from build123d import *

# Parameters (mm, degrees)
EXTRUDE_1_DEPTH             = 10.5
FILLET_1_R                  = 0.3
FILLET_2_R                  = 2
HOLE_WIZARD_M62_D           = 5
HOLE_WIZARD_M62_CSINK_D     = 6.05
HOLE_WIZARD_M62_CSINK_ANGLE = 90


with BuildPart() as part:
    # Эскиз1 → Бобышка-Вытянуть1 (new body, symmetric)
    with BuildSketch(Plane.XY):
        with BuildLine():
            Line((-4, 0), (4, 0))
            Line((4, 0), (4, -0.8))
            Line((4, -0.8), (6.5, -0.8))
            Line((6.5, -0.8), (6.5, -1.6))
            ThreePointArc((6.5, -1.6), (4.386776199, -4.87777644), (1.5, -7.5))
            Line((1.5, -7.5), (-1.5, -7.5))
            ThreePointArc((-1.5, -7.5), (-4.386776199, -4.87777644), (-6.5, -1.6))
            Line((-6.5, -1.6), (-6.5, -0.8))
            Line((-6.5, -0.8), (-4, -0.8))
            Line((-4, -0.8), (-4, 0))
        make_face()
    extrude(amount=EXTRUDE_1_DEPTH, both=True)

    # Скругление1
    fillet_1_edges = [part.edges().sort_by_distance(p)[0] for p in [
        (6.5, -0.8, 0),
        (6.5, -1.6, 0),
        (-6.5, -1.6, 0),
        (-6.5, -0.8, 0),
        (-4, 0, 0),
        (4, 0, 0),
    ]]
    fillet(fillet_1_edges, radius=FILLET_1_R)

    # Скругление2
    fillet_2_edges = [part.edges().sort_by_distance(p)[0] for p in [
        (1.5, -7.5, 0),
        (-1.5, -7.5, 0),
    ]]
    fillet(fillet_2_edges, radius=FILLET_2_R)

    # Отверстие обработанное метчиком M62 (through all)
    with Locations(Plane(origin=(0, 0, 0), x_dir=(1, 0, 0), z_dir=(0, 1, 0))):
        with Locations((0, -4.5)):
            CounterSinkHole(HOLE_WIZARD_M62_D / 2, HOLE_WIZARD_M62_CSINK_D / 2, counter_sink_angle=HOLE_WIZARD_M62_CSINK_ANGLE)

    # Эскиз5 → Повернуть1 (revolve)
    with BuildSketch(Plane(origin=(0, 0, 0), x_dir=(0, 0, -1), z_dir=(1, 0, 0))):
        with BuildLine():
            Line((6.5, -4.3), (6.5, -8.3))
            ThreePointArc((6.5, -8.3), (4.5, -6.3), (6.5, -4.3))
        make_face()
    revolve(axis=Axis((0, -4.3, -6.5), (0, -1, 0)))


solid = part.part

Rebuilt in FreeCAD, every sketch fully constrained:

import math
import FreeCAD as App
import Part
import Sketcher
from FreeCAD import Vector


def edges_at(feature, points):
    """Names of the edges that pass closest to the given points."""
    edges = feature.Shape.Edges
    near = lambda p: min(range(len(edges)), key=lambda i: edges[i].distToShape(Part.Vertex(*p))[0])
    return sorted({f"Edge{near(p) + 1}" for p in points})

doc = App.newDocument("Part")
params = doc.addObject("Spreadsheet::Sheet", "Params")
for row, (alias, value) in enumerate([
    ("sketch1_radius", "15 mm"),
    ("sketch1_width", "8 mm"),
    ("sketch1_width2", "3 mm"),
    ("sketch1_width3", "2.5 mm"),
    ("sketch1_height", "0.8 mm"),
    ("pad1_length", "21 mm"),
    ("fillet_radius", "0.3 mm"),
    ("fillet2_radius", "2 mm"),
    ("sketch2_diameter", "5 mm"),
    ("hole_diameter", "5 mm"),
    ("hole_csink_diameter", "6.05 mm"),
    ("sketch3_radius", "2 mm"),
    ("revolution_angle", "360 deg"),
], start=1):
    params.set(f"A{row}", alias)
    params.set(f"B{row}", "=" + value)
    params.setAlias(f"B{row}", alias)

body = doc.addObject("PartDesign::Body", "Body")

# Sketch on XY plane
sketch1 = body.newObject("Sketcher::SketchObject", "Sketch")
sketch1.AttachmentSupport = (doc.getObject("XY_Plane"), [""])
sketch1.MapMode = "FlatFace"
sketch1.addGeometry(Part.LineSegment(Vector(4, 0, 0), Vector(-4, 0, 0)), False)
sketch1.addGeometry(Part.LineSegment(Vector(-4, 0, 0), Vector(-4, -0.8, 0)), False)
sketch1.addGeometry(Part.LineSegment(Vector(-4, -0.8, 0), Vector(-6.5, -0.8, 0)), False)
sketch1.addGeometry(Part.LineSegment(Vector(-6.5, -0.8, 0), Vector(-6.5, -1.6, 0)), False)
sketch1.addGeometry(Part.ArcOfCircle(Part.Circle(Vector(7.056658, 4.820049, 0), Vector(0, 0, 1), 15), math.radians(-154.659091), math.radians(-124.781183)), False)
sketch1.addGeometry(Part.LineSegment(Vector(-1.5, -7.5, 0), Vector(1.5, -7.5, 0)), False)
sketch1.addGeometry(Part.ArcOfCircle(Part.Circle(Vector(-7.056658, 4.820049, 0), Vector(0, 0, 1), 15), math.radians(-55.218817), math.radians(-25.340909)), False)
sketch1.addGeometry(Part.LineSegment(Vector(6.5, -1.6, 0), Vector(6.5, -0.8, 0)), False)
sketch1.addGeometry(Part.LineSegment(Vector(6.5, -0.8, 0), Vector(4, -0.8, 0)), False)
sketch1.addGeometry(Part.LineSegment(Vector(4, -0.8, 0), Vector(4, 0, 0)), False)
sketch1.addConstraint(Sketcher.Constraint("Coincident", 0, 2, 1, 1))
sketch1.addConstraint(Sketcher.Constraint("Coincident", 1, 2, 2, 1))
sketch1.addConstraint(Sketcher.Constraint("Coincident", 2, 2, 3, 1))
sketch1.addConstraint(Sketcher.Constraint("Coincident", 3, 2, 4, 1))
sketch1.addConstraint(Sketcher.Constraint("Coincident", 4, 2, 5, 1))
sketch1.addConstraint(Sketcher.Constraint("Coincident", 5, 2, 6, 1))
sketch1.addConstraint(Sketcher.Constraint("Coincident", 6, 2, 7, 1))
sketch1.addConstraint(Sketcher.Constraint("Coincident", 7, 2, 8, 1))
sketch1.addConstraint(Sketcher.Constraint("Coincident", 8, 2, 9, 1))
sketch1.addConstraint(Sketcher.Constraint("Coincident", 9, 2, 0, 1))
sketch1.addConstraint(Sketcher.Constraint("Horizontal", 0))
sketch1.addConstraint(Sketcher.Constraint("Vertical", 1))
sketch1.addConstraint(Sketcher.Constraint("Horizontal", 2))
sketch1.addConstraint(Sketcher.Constraint("Vertical", 3))
sketch1.addConstraint(Sketcher.Constraint("Horizontal", 5))
sketch1.addConstraint(Sketcher.Constraint("Vertical", 7))
sketch1.addConstraint(Sketcher.Constraint("Horizontal", 8))
sketch1.addConstraint(Sketcher.Constraint("Vertical", 9))
sketch1.addConstraint(Sketcher.Constraint("Equal", 4, 6))
sketch1.addConstraint(Sketcher.Constraint("Symmetric", 0, 2, 9, 2, -1, 1))
sketch1.addConstraint(Sketcher.Constraint("Symmetric", 4, 3, 6, 3, -2))
sketch1.addConstraint(Sketcher.Constraint("Symmetric", 2, 2, 7, 2, -2))
sketch1.addConstraint(Sketcher.Constraint("Equal", 1, 3))
sketch1.addConstraint(Sketcher.Constraint("Radius", 4, 15.0))
sketch1.addConstraint(Sketcher.Constraint("DistanceX", 0, 2, 0, 1, 8.0))
sketch1.addConstraint(Sketcher.Constraint("DistanceX", 5, 1, 5, 2, 3.0))
sketch1.addConstraint(Sketcher.Constraint("DistanceX", 2, 2, 2, 1, 2.5))
sketch1.addConstraint(Sketcher.Constraint("DistanceY", 1, 2, 1, 1, 0.8))
sketch1.addConstraint(Sketcher.Constraint("DistanceY", 4, 2, -1, 1, 7.5))
sketch1.setExpression("Constraints[23]", "Params.sketch1_radius")
sketch1.setExpression("Constraints[24]", "Params.sketch1_width")
sketch1.setExpression("Constraints[25]", "Params.sketch1_width2")
sketch1.setExpression("Constraints[26]", "Params.sketch1_width3")
sketch1.setExpression("Constraints[27]", "Params.sketch1_height")
pad1 = body.newObject("PartDesign::Pad", "Pad")
pad1.Profile = sketch1
pad1.setExpression("Length", "Params.pad1_length")
pad1.Midplane = True
doc.recompute()

fillet = body.newObject("PartDesign::Fillet", "Fillet")
fillet.Base = (pad1, edges_at(pad1, [
    (6.5, -0.8, 0),
    (6.5, -1.6, 0),
    (-6.5, -1.6, 0),
    (-6.5, -0.8, 0),
    (-4, 0, 0),
    (4, 0, 0),
]))
fillet.setExpression("Radius", "Params.fillet_radius")
doc.recompute()

fillet2 = body.newObject("PartDesign::Fillet", "Fillet001")
fillet2.Base = (fillet, edges_at(fillet, [(1.5, -7.5, 0), (-1.5, -7.5, 0)]))
fillet2.setExpression("Radius", "Params.fillet2_radius")

# Sketch on XZ plane
sketch2 = body.newObject("Sketcher::SketchObject", "Sketch001")
sketch2.AttachmentSupport = (doc.getObject("XZ_Plane"), [""])
sketch2.MapMode = "FlatFace"
sketch2.addGeometry(Part.Circle(Vector(0, 4.5, 0), Vector(0, 0, 1), 2.5), False)
sketch2.addConstraint(Sketcher.Constraint("PointOnObject", 0, 3, -2))
sketch2.addConstraint(Sketcher.Constraint("Diameter", 0, 5.0))
sketch2.addConstraint(Sketcher.Constraint("DistanceY", -1, 1, 0, 3, 4.5))
sketch2.setExpression("Constraints[1]", "Params.sketch2_diameter")
doc.recompute()
hole = body.newObject("PartDesign::Hole", "Hole")
hole.Profile = sketch2
hole.ThreadType = "None"
hole.setExpression("Diameter", "Params.hole_diameter")
hole.DepthType = "ThroughAll"
hole.HoleCutType = "Countersink"
hole.setExpression("HoleCutDiameter", "Params.hole_csink_diameter")
hole.HoleCutCountersinkAngle = 90
hole.Reversed = True

# Sketch on YZ plane
sketch3 = body.newObject("Sketcher::SketchObject", "Sketch002")
sketch3.AttachmentSupport = (doc.getObject("YZ_Plane"), [""])
sketch3.MapMode = "FlatFace"
sketch3.addGeometry(Part.LineSegment(Vector(-8.3, -6.5, 0), Vector(-4.3, -6.5, 0)), False)
sketch3.addGeometry(Part.ArcOfCircle(Part.Circle(Vector(-6.3, -6.5, 0), Vector(0, 0, 1), 2), math.radians(0), math.radians(180)), False)
sketch3.addGeometry(Part.LineSegment(Vector(-4.3, -6.5, 0), Vector(-8.3, -6.5, 0)), True)  # axis
sketch3.addConstraint(Sketcher.Constraint("Coincident", 0, 1, 1, 2))
sketch3.addConstraint(Sketcher.Constraint("Coincident", 1, 1, 0, 2))
sketch3.addConstraint(Sketcher.Constraint("Horizontal", 0))
sketch3.addConstraint(Sketcher.Constraint("Horizontal", 2))
sketch3.addConstraint(Sketcher.Constraint("Coincident", 2, 1, 1, 1))
sketch3.addConstraint(Sketcher.Constraint("Horizontal", 1, 3, 0, 1))
sketch3.addConstraint(Sketcher.Constraint("Equal", 0, 2))
sketch3.addConstraint(Sketcher.Constraint("Radius", 1, 2.0))
sketch3.addConstraint(Sketcher.Constraint("DistanceX", 1, 3, -1, 1, 6.3))
sketch3.addConstraint(Sketcher.Constraint("DistanceY", 1, 3, -1, 1, 6.5))
sketch3.setExpression("Constraints[7]", "Params.sketch3_radius")
revolution = body.newObject("PartDesign::Revolution", "Revolution")
revolution.Profile = sketch3
revolution.ReferenceAxis = (sketch3, ["Axis0"])
revolution.setExpression("Angle", "Params.revolution_angle")

doc.recompute()
